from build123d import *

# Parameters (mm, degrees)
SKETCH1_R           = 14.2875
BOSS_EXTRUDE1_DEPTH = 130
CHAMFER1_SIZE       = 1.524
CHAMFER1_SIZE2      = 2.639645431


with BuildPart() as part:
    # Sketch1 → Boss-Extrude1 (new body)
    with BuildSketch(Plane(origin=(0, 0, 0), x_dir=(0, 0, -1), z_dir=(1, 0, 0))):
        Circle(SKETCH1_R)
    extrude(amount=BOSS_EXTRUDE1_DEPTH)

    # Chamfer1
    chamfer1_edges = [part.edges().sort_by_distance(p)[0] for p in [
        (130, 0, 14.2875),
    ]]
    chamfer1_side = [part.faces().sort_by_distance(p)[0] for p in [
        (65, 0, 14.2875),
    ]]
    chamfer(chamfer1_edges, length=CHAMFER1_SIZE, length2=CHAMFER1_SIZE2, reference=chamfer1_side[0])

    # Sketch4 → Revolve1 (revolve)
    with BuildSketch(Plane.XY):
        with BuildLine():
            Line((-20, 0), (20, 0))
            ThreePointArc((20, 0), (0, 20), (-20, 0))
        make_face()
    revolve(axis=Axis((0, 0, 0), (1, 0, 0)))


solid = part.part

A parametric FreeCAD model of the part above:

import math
import FreeCAD as App
import Part
import Sketcher
Q = App.Units.Quantity


def edges_at(feature, points):
    """Names of the edges that pass closest to the given points."""
    edges = feature.Shape.Edges
    near = lambda p: min(range(len(edges)), key=lambda i: edges[i].distToShape(Part.Vertex(*p))[0])
    return sorted({f"Edge{near(p) + 1}" for p in points})

doc = App.newDocument("Part")
params = doc.addObject("Spreadsheet::Sheet", "Params")
for row, (alias, value) in enumerate([
    ("pad1_length", "130 mm"),
    ("chamfer_size", "1.524 mm"),
    ("chamfer_size2", "2.639645 mm"),
    ("sketch2_radius", "20 mm"),
    ("revolution_angle", "360 deg"),
], start=1):
    params.set(f"A{row}", alias)
    params.set(f"B{row}", "=" + value)
    params.setAlias(f"B{row}", alias)

body = doc.addObject("PartDesign::Body", "Body")

# Sketch on YZ plane
sketch1 = body.newObject("Sketcher::SketchObject", "Sketch")
sketch1.AttachmentSupport = (doc.getObject("YZ_Plane"), [""])
sketch1.MapMode = "FlatFace"
sketch1.addGeometry(Part.Circle(App.Vector(0, 0, 0), App.Vector(0, 0, 1), 14), False)
sketch1.addConstraint([
    Sketcher.Constraint("Coincident", 0, 3, -1, 1),
    Sketcher.Constraint("Diameter", 0, Q("28.575 mm")),
])
pad1 = body.newObject("PartDesign::Pad", "Pad")
pad1.Profile = sketch1
pad1.setExpression("Length", "Params.pad1_length")
doc.recompute()

chamfer = body.newObject("PartDesign::Chamfer", "Chamfer")
chamfer.Base = (pad1, edges_at(pad1, [(130, 0, 14.287)]))
chamfer.ChamferType = "Two distances"
chamfer.setExpression("Size", "Params.chamfer_size")
chamfer.setExpression("Size2", "Params.chamfer_size2")

# Sketch on XY plane
sketch2 = body.newObject("Sketcher::SketchObject", "Sketch001")
sketch2.AttachmentSupport = (doc.getObject("XY_Plane"), [""])
sketch2.MapMode = "FlatFace"
sketch2.addGeometry([
    Part.LineSegment(App.Vector(-20, 0, 0), App.Vector(20, 0, 0)),
    Part.ArcOfCircle(Part.Circle(App.Vector(0, 0, 0), App.Vector(0, 0, 1), 20), math.radians(0), math.radians(180)),
], False)
sketch2.addConstraint([
    Sketcher.Constraint("Coincident", 0, 1, 1, 2),
    Sketcher.Constraint("Coincident", 1, 1, 0, 2),
    Sketcher.Constraint("Horizontal", 0),
    Sketcher.Constraint("Coincident", 1, 3, -1, 1),
    Sketcher.Constraint("PointOnObject", 0, 1, -1),
    Sketcher.Constraint("Radius", 1, Q("20 mm")),
])
sketch2.setExpression("Constraints[5]", "Params.sketch2_radius")
revolution = body.newObject("PartDesign::Revolution", "Revolution")
revolution.Profile = sketch2
revolution.ReferenceAxis = (sketch2, ["H_Axis"])
revolution.setExpression("Angle", "Params.revolution_angle")

doc.recompute()
